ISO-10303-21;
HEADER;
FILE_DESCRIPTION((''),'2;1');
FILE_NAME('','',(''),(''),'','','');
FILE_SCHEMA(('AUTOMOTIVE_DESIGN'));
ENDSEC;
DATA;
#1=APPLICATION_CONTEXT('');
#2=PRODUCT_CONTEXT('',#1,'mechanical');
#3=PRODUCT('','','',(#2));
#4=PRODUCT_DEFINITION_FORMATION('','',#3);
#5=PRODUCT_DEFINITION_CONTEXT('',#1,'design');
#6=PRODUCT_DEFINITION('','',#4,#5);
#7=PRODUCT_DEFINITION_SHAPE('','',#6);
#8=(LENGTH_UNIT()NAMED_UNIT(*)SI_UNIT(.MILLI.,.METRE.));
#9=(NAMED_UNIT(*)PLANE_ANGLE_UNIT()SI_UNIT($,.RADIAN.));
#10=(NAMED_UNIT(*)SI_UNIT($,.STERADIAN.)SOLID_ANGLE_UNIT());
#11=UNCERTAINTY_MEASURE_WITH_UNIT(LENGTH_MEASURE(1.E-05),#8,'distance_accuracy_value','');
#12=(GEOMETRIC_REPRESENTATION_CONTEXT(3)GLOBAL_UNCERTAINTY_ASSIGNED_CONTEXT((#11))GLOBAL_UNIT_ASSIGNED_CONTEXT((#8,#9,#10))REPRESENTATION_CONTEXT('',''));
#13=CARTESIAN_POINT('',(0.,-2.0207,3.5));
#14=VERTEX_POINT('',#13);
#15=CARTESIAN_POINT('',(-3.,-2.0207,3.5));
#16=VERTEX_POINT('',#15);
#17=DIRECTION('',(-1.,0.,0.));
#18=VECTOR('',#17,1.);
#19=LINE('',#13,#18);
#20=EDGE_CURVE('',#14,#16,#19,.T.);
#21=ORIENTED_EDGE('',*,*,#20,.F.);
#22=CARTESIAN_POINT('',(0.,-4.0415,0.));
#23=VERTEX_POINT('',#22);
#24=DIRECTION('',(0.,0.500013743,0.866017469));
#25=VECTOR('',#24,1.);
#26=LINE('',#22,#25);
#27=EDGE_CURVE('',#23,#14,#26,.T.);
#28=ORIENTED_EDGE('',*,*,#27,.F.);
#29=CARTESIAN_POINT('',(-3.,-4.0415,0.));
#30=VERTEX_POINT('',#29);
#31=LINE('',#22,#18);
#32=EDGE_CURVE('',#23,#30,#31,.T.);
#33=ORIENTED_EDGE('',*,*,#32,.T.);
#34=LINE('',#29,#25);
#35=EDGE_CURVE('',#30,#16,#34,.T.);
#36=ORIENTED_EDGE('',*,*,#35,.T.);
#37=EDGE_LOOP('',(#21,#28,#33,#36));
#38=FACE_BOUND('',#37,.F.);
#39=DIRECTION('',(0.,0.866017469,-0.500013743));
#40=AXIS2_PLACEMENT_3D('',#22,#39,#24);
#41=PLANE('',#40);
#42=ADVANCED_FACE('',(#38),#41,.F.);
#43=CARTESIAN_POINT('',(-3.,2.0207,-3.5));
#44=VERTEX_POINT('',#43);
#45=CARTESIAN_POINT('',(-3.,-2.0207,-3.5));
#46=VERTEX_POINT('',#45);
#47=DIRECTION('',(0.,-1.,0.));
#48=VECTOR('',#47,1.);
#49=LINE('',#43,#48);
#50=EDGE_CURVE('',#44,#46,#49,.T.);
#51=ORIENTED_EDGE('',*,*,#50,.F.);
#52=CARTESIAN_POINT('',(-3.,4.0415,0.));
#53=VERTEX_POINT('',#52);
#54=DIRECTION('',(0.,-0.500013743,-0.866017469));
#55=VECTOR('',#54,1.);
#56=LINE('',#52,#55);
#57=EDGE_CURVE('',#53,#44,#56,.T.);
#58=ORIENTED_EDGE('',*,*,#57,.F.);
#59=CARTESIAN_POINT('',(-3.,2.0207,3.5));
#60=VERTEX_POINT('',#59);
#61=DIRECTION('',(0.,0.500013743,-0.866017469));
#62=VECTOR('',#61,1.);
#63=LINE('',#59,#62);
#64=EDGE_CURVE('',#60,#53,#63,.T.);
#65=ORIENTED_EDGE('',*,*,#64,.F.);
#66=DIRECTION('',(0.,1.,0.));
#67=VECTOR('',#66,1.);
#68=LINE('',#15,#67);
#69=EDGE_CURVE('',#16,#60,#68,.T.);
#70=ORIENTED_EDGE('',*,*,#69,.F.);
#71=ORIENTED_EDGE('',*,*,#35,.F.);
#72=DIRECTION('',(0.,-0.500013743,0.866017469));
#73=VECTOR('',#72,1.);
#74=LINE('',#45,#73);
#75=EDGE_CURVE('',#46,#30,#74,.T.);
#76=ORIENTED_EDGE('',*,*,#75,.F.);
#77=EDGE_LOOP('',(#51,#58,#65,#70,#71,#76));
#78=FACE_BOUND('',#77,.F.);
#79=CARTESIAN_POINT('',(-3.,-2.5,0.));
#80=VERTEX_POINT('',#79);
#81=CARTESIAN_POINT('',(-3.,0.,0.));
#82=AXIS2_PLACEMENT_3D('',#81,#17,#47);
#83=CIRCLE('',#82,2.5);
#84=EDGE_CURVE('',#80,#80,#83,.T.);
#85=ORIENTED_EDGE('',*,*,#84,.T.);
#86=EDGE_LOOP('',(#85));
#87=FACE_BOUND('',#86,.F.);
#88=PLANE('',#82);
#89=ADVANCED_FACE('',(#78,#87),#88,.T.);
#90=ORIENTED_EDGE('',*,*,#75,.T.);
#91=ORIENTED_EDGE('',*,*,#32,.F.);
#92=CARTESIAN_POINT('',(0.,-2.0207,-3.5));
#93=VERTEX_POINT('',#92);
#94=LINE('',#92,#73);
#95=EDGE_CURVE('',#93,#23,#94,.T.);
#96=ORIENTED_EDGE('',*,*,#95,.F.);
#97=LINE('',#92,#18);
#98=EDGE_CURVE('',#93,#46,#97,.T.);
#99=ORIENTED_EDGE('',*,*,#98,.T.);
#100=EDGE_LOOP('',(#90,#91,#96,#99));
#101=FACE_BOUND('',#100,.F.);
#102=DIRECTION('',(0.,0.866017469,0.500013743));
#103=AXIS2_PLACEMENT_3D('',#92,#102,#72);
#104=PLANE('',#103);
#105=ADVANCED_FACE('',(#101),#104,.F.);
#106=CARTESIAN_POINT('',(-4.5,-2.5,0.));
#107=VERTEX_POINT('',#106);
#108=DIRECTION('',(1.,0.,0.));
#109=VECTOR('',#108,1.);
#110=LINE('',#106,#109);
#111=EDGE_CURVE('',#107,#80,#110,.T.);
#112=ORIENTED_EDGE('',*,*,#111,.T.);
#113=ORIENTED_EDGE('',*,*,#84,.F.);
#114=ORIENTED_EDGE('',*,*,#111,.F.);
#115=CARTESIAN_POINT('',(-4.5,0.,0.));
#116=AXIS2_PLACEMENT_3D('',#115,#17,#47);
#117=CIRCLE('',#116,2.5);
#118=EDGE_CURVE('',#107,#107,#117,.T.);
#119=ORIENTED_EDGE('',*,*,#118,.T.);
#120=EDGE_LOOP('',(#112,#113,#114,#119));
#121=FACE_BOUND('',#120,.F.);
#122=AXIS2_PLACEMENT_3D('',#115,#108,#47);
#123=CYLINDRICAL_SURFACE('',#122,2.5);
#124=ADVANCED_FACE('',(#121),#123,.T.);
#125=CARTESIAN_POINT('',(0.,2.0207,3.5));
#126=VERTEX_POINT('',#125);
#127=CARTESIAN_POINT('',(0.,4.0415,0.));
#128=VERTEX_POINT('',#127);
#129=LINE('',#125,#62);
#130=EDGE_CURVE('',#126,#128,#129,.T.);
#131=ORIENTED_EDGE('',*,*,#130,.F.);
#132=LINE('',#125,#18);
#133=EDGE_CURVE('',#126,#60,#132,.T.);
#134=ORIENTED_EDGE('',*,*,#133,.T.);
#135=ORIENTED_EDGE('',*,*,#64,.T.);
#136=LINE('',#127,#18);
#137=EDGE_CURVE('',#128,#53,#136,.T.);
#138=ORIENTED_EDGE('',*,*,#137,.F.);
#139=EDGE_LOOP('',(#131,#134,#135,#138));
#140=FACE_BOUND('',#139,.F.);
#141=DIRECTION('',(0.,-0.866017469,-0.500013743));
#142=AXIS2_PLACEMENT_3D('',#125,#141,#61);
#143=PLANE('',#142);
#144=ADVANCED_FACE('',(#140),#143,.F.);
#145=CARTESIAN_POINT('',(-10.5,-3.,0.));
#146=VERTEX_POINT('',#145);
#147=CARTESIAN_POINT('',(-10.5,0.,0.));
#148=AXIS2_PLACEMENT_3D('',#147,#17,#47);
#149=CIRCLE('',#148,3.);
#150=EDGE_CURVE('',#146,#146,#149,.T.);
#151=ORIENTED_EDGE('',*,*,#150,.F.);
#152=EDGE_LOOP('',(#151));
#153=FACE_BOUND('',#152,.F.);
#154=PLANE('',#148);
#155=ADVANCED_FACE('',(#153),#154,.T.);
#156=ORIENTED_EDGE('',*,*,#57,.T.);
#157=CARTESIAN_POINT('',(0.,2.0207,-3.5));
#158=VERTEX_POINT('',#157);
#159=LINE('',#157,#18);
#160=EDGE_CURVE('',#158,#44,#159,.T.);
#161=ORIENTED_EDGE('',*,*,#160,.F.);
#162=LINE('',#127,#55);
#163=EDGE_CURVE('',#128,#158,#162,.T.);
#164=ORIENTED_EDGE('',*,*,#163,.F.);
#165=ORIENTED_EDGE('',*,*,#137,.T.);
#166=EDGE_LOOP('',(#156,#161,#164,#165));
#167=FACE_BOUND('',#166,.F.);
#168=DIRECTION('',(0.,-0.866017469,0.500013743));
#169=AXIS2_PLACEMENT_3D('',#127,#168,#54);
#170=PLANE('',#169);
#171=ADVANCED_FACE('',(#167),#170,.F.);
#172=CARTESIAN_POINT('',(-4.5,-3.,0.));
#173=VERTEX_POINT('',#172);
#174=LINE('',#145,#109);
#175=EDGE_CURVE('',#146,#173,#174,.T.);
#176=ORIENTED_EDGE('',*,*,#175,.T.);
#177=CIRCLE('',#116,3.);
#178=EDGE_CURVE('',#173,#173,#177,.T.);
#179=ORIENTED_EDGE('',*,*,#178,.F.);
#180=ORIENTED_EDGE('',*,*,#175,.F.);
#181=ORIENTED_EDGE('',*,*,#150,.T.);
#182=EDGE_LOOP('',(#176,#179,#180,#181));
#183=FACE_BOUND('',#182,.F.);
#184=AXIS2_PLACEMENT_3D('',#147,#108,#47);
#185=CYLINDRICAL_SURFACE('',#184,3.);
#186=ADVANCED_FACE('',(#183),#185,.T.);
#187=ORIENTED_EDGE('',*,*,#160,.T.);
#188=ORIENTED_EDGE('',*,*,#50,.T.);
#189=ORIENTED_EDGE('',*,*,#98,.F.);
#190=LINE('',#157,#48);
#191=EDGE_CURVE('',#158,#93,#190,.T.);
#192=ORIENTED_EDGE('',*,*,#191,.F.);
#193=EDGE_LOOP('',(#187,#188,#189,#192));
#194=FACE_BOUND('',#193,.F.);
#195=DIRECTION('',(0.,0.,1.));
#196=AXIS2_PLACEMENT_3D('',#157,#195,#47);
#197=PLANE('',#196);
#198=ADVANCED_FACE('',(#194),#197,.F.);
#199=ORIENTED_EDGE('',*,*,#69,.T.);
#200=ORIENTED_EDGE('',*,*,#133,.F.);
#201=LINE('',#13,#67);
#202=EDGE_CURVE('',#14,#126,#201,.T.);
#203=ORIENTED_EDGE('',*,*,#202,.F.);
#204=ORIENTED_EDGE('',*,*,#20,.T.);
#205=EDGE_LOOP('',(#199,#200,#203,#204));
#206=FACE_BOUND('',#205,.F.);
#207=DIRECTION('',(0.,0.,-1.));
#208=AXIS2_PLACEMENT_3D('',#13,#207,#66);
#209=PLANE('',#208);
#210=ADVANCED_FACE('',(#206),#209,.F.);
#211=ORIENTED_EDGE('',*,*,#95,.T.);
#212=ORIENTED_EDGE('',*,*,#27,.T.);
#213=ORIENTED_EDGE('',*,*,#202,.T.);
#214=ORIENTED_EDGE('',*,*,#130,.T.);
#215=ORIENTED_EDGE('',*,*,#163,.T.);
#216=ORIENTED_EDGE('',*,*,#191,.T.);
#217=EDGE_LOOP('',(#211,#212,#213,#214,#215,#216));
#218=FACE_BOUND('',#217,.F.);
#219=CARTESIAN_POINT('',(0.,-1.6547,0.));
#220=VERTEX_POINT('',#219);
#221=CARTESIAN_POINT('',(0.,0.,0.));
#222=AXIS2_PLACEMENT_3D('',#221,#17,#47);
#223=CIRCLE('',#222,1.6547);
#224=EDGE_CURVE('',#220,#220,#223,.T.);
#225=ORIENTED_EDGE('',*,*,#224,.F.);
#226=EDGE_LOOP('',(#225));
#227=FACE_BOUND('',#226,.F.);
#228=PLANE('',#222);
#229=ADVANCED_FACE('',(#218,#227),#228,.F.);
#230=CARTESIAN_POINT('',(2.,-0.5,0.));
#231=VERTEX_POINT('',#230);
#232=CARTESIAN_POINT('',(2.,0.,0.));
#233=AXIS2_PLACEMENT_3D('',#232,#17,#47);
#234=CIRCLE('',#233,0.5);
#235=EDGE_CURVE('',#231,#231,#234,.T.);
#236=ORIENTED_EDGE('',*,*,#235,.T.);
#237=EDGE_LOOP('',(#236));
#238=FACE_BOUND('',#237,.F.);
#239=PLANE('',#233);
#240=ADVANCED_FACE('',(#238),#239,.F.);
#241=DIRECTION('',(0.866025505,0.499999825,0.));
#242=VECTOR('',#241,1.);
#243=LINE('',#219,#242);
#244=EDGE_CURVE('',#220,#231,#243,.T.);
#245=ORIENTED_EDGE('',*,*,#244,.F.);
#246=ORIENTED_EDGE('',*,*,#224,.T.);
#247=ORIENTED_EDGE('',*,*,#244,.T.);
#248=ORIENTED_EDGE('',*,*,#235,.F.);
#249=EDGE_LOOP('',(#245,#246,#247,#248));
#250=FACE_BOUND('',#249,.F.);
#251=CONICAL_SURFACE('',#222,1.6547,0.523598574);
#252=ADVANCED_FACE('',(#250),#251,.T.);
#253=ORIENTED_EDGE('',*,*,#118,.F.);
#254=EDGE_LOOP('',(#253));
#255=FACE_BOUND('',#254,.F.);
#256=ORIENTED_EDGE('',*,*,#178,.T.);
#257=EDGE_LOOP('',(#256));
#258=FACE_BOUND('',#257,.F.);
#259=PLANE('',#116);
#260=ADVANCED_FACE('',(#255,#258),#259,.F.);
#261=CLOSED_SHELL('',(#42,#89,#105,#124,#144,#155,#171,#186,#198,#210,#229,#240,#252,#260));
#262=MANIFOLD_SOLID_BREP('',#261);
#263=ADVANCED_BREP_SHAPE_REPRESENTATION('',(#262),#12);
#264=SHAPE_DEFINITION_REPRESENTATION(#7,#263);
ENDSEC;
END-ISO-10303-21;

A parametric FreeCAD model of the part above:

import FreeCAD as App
import Part
import Sketcher

V = App.Vector
Q = App.Units.Quantity

doc = App.newDocument("Part")
params = doc.addObject("Spreadsheet::Sheet", "Params")
for row, (alias, value) in enumerate([
    ("sketch1_width", "6 mm"),
    ("sketch1_width2", "3 mm"),
    ("sketch1_height", "0.5 mm"),
    ("sketch1_height2", "7.5 mm"),
    ("revolution_angle", "360 deg"),
    ("sketch2_diameter", "20 mm"),
    ("pocket1_length", "3 mm"),
], start=1):
    params.set(f"A{row}", alias)
    params.set(f"B{row}", "=" + value)
    params.setAlias(f"B{row}", alias)

body = doc.addObject("PartDesign::Body", "Body")

# Sketch on XY plane
sketch1 = doc.addObject("Sketcher::SketchObject", "Sketch")
body.addObject(sketch1)
sketch1.AttachmentSupport = (doc.XY_Plane, [""])
sketch1.MapMode = "FlatFace"
sketch1.addGeometry([
    Part.LineSegment(V(2, 0, 0), V(-10.5, 0, 0)),  # 0
    Part.LineSegment(V(-10.5, 0, 0), V(-10.5, -3, 0)),  # 1
    Part.LineSegment(V(-10.5, -3, 0), V(-4.5, -3, 0)),  # 2
    Part.LineSegment(V(-4.5, -3, 0), V(-4.5, -2.5, 0)),  # 3
    Part.LineSegment(V(-4.5, -2.5, 0), V(-3, -2.5, 0)),  # 4
    Part.LineSegment(V(-3, -2.5, 0), V(-3, -10, 0)),  # 5
    Part.LineSegment(V(-3, -10, 0), V(0, -10, 0)),  # 6
    Part.LineSegment(V(0, -10, 0), V(0, -1.6547, 0)),  # 7
    Part.LineSegment(V(0, -1.6547, 0), V(2, -0.5, 0)),  # 8
    Part.LineSegment(V(2, -0.5, 0), V(2, 0, 0)),  # 9
], False)
sketch1.addConstraint([
    Sketcher.Constraint("Coincident", 0, 2, 1, 1),
    Sketcher.Constraint("Coincident", 1, 2, 2, 1),
    Sketcher.Constraint("Coincident", 2, 2, 3, 1),
    Sketcher.Constraint("Coincident", 3, 2, 4, 1),
    Sketcher.Constraint("Coincident", 4, 2, 5, 1),
    Sketcher.Constraint("Coincident", 5, 2, 6, 1),
    Sketcher.Constraint("Coincident", 6, 2, 7, 1),
    Sketcher.Constraint("Coincident", 7, 2, 8, 1),
    Sketcher.Constraint("Coincident", 8, 2, 9, 1),
    Sketcher.Constraint("Coincident", 9, 2, 0, 1),
    Sketcher.Constraint("Horizontal", 0),
    Sketcher.Constraint("Vertical", 1),
    Sketcher.Constraint("Horizontal", 2),
    Sketcher.Constraint("Vertical", 3),
    Sketcher.Constraint("Horizontal", 4),
    Sketcher.Constraint("Vertical", 5),
    Sketcher.Constraint("Horizontal", 6),
    Sketcher.Constraint("Vertical", 7),
    Sketcher.Constraint("Vertical", 9),
    Sketcher.Constraint("PointOnObject", 0, 2, -1),
    Sketcher.Constraint("PointOnObject", 6, 2, -2),
    Sketcher.Constraint("Equal", 6, 1),
    Sketcher.Constraint("Equal", 3, 9),
    Sketcher.Constraint("DistanceX", 2, 1, 2, 2, Q("6 mm")),
    Sketcher.Constraint("DistanceX", 6, 1, 6, 2, Q("3 mm")),
    Sketcher.Constraint("Angle", 8, Q("30 deg")),
    Sketcher.Constraint("DistanceY", 3, 1, 3, 2, Q("0.5 mm")),
    Sketcher.Constraint("DistanceY", 5, 2, 5, 1, Q("7.5 mm")),
    Sketcher.Constraint("DistanceX", -1, 1, 8, 2, Q("2 mm")),
    Sketcher.Constraint("DistanceX", 0, 2, -1, 1, Q("10.5 mm")),
])
sketch1.setExpression("Constraints[23]", "Params.sketch1_width")
sketch1.setExpression("Constraints[24]", "Params.sketch1_width2")
sketch1.setExpression("Constraints[26]", "Params.sketch1_height")
sketch1.setExpression("Constraints[27]", "Params.sketch1_height2")
revolution = doc.addObject("PartDesign::Revolution", "Revolution")
body.addObject(revolution)
revolution.Profile = sketch1
revolution.ReferenceAxis = (sketch1, ["H_Axis"])
revolution.setExpression("Angle", "Params.revolution_angle")

# Sketch on YZ plane
sketch2 = doc.addObject("Sketcher::SketchObject", "Sketch001")
body.addObject(sketch2)
sketch2.AttachmentSupport = (doc.YZ_Plane, [""])
sketch2.MapMode = "FlatFace"
sketch2.addGeometry([
    Part.Circle(V(0, 0, 0), V(0, 0, 1), 10),  # 0
    Part.LineSegment(V(2.0207, 3.5, 0), V(4.0415, 0, 0)),  # 1
    Part.LineSegment(V(4.0415, 0, 0), V(2.0207, -3.5, 0)),  # 2
    Part.LineSegment(V(2.0207, -3.5, 0), V(-2.0207, -3.5, 0)),  # 3
    Part.LineSegment(V(-2.0207, -3.5, 0), V(-4.0415, 0, 0)),  # 4
    Part.LineSegment(V(-4.0415, 0, 0), V(-2.0207, 3.5, 0)),  # 5
    Part.LineSegment(V(-2.0207, 3.5, 0), V(2.0207, 3.5, 0)),  # 6
], False)
sketch2.addConstraint([
    Sketcher.Constraint("Coincident", 1, 2, 2, 1),
    Sketcher.Constraint("Coincident", 2, 2, 3, 1),
    Sketcher.Constraint("Coincident", 3, 2, 4, 1),
    Sketcher.Constraint("Coincident", 4, 2, 5, 1),
    Sketcher.Constraint("Coincident", 5, 2, 6, 1),
    Sketcher.Constraint("Coincident", 6, 2, 1, 1),
    Sketcher.Constraint("Horizontal", 3),
    Sketcher.Constraint("Horizontal", 6),
    Sketcher.Constraint("Coincident", 0, 3, -1, 1),
    Sketcher.Constraint("Symmetric", 1, 2, 4, 2, -1, 1),
    Sketcher.Constraint("Symmetric", 2, 2, 5, 2, -1, 1),
    Sketcher.Constraint("PointOnObject", 1, 2, -1),
    Sketcher.Constraint("Parallel", 1, 4),
    Sketcher.Constraint("Vertical", 3, 2, 5, 2),
    Sketcher.Constraint("Diameter", 0, Q("20 mm")),
    Sketcher.Constraint("DistanceY", 3, 2, 5, 2, Q("7 mm")),
    Sketcher.Constraint("Angle", 1, Q("-59.999 deg")),
    Sketcher.Constraint("DistanceX", 3, 2, 3, 1, Q("4.0414 mm")),
])
sketch2.setExpression("Constraints[14]", "Params.sketch2_diameter")
pocket1 = doc.addObject("PartDesign::Pocket", "Pocket")
body.addObject(pocket1)
pocket1.Profile = sketch2
pocket1.setExpression("Length", "Params.pocket1_length")

doc.recompute()
